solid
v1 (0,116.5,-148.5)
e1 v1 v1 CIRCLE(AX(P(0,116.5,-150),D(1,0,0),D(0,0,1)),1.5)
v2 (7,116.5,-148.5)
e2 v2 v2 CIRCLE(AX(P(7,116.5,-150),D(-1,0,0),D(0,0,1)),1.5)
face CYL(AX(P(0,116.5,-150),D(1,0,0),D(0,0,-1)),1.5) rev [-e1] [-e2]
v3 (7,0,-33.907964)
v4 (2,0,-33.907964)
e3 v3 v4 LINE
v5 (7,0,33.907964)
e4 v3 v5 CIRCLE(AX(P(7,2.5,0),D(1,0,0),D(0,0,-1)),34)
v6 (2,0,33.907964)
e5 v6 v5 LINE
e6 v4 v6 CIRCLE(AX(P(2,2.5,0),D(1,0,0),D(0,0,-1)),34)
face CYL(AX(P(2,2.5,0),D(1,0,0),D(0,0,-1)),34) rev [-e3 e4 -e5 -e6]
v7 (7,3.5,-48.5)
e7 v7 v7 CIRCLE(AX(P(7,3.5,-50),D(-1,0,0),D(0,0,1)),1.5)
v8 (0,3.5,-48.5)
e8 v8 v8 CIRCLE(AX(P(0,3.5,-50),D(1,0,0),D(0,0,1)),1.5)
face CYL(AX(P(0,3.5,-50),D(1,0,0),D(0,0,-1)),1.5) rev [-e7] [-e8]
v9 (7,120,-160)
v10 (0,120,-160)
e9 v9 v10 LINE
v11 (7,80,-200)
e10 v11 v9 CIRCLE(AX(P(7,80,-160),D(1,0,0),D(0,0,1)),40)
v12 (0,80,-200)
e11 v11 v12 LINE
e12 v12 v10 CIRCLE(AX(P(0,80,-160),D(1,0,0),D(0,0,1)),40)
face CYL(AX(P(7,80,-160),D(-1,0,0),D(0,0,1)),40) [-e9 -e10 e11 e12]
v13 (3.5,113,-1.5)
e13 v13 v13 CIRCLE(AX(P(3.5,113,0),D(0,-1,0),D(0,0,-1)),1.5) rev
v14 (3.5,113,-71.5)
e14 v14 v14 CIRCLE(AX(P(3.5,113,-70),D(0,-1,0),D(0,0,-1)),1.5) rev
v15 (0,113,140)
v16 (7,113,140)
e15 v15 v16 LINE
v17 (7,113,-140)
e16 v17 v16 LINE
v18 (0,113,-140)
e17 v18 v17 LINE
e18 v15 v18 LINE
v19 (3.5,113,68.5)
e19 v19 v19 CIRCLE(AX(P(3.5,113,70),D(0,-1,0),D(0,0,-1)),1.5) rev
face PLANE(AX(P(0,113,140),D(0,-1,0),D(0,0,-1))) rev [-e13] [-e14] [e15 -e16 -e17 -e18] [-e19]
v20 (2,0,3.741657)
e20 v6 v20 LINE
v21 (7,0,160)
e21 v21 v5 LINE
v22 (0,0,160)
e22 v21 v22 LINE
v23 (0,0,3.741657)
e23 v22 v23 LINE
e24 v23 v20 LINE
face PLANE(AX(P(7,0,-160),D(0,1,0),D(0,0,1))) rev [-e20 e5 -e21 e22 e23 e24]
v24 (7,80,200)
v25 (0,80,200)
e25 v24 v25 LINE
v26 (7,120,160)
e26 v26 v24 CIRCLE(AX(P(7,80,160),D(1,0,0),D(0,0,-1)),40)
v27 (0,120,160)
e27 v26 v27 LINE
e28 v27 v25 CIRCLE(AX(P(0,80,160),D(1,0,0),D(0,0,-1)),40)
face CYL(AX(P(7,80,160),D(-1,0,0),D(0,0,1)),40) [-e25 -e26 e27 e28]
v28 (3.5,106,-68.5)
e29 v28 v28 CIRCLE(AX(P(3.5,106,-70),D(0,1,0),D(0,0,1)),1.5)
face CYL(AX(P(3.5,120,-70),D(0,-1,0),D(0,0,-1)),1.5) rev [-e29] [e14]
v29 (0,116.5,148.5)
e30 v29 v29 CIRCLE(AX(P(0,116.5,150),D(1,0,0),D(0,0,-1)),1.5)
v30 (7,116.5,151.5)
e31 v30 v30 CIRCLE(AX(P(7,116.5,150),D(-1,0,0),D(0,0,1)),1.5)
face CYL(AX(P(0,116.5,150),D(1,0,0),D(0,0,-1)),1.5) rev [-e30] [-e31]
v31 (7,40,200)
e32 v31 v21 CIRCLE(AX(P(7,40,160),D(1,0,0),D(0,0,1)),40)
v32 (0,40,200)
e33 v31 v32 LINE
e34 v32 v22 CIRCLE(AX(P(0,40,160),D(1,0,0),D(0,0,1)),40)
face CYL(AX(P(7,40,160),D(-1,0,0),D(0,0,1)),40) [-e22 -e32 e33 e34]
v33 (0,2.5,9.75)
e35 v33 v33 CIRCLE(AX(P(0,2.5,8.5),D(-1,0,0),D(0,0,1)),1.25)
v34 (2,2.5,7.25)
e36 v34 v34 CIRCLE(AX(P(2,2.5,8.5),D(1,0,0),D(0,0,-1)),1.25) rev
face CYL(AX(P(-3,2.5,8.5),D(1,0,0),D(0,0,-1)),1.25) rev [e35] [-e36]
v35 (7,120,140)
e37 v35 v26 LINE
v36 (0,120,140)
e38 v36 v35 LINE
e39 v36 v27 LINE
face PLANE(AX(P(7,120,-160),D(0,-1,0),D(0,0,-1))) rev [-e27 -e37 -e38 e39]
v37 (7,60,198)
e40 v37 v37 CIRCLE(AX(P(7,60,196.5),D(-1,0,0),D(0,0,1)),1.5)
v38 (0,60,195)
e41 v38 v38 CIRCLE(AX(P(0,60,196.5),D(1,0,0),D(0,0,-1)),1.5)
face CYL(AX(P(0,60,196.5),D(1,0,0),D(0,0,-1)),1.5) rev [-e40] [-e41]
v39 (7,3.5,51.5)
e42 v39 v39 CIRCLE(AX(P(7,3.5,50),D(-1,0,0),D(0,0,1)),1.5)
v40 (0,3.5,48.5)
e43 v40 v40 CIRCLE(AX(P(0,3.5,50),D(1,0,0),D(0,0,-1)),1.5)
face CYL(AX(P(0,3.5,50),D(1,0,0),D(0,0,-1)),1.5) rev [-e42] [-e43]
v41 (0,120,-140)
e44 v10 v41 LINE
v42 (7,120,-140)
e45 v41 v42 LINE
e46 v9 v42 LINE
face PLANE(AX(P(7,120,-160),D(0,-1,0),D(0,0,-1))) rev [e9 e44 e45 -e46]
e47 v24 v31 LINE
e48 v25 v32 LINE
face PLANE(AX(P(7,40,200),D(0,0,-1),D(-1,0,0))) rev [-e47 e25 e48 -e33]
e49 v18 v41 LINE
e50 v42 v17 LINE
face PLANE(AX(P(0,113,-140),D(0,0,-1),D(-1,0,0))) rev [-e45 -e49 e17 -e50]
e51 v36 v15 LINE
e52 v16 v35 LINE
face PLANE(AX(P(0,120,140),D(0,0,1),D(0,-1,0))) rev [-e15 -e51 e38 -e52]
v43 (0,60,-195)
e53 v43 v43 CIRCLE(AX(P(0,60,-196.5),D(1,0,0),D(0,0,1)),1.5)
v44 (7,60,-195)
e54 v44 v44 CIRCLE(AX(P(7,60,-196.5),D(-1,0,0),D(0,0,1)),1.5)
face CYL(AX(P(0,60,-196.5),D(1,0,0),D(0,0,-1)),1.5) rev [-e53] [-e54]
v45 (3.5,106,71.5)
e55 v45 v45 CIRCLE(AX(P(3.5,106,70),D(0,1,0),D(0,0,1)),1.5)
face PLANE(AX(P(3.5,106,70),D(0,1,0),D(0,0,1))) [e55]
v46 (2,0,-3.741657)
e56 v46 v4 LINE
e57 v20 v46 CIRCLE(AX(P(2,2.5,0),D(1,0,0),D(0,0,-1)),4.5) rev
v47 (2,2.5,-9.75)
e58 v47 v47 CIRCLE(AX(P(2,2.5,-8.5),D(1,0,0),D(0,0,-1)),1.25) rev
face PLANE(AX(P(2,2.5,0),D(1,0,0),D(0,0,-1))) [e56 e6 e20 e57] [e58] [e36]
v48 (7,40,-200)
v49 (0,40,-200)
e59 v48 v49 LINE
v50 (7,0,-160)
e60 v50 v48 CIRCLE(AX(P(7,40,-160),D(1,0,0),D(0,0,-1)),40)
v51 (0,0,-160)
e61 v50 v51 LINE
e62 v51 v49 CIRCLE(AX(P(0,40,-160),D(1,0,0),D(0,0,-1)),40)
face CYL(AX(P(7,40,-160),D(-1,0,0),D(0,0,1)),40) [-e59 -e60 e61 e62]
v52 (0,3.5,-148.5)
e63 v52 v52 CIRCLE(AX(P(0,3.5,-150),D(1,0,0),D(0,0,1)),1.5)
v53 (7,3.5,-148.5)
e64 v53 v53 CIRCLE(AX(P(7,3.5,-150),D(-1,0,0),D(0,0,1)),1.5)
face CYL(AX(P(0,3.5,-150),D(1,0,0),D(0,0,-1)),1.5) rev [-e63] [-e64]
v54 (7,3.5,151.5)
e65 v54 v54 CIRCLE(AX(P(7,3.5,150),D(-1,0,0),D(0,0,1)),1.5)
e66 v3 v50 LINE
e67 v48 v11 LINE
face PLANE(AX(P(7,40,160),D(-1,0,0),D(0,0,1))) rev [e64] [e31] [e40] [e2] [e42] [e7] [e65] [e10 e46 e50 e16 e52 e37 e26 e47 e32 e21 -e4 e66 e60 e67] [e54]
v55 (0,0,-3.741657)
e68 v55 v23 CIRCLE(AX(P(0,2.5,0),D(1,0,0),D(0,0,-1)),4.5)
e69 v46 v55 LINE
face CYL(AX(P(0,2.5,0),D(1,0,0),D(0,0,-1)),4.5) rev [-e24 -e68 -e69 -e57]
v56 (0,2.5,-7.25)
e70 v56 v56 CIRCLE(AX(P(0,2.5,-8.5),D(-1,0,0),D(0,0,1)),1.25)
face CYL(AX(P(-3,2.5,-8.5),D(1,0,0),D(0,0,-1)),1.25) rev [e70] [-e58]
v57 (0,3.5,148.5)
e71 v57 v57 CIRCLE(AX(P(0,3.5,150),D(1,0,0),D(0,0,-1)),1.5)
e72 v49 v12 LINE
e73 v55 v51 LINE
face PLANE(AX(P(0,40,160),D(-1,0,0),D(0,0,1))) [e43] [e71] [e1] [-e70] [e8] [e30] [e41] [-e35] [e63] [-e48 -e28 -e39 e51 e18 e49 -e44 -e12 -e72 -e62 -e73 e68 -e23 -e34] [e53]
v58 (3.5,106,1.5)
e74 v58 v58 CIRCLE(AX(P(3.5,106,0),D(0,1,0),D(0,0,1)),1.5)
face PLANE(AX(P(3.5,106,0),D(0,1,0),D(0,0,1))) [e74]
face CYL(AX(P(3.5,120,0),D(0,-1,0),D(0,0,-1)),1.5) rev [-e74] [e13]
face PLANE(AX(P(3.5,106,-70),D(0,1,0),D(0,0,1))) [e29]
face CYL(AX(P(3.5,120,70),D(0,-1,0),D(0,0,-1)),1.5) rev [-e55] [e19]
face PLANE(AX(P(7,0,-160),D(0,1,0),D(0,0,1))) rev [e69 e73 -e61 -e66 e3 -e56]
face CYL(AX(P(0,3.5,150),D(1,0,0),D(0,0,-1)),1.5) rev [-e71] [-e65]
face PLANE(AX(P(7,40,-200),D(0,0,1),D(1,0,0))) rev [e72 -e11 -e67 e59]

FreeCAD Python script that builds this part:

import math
import FreeCAD as App
import Part
import Sketcher
Q = App.Units.Quantity

doc = App.newDocument("Part")
body = doc.addObject("PartDesign::Body", "Body")

# Sketch on YZ plane
sketch1 = body.newObject("Sketcher::SketchObject", "Sketch")
sketch1.AttachmentSupport = (doc.getObject("YZ_Plane"), [""])
sketch1.MapMode = "FlatFace"
sketch1.addGeometry([
    Part.LineSegment(App.Vector(0, 160, 0), App.Vector(0, -160, 0)),  # 0
    Part.ArcOfCircle(Part.Circle(App.Vector(40, -160, 0), App.Vector(0, 0, 1), 40), math.radians(-180), math.radians(-90)),  # 1
    Part.LineSegment(App.Vector(40, -200, 0), App.Vector(80, -200, 0)),  # 2
    Part.ArcOfCircle(Part.Circle(App.Vector(80, -160, 0), App.Vector(0, 0, 1), 40), math.radians(-90), math.radians(0)),  # 3
    Part.LineSegment(App.Vector(120, -160, 0), App.Vector(120, 160, 0)),  # 4
    Part.ArcOfCircle(Part.Circle(App.Vector(80, 160, 0), App.Vector(0, 0, 1), 40), math.radians(0), math.radians(90)),  # 5
    Part.LineSegment(App.Vector(80, 200, 0), App.Vector(40, 200, 0)),  # 6
    Part.ArcOfCircle(Part.Circle(App.Vector(40, 160, 0), App.Vector(0, 0, 1), 40), math.radians(90), math.radians(180)),  # 7
], False)
sketch1.addConstraint([
    Sketcher.Constraint("Tangent", 0, 2, 1, 1),
    Sketcher.Constraint("Tangent", 1, 2, 2, 1),
    Sketcher.Constraint("Tangent", 2, 2, 3, 1),
    Sketcher.Constraint("Tangent", 3, 2, 4, 1),
    Sketcher.Constraint("Tangent", 4, 2, 5, 1),
    Sketcher.Constraint("Tangent", 5, 2, 6, 1),
    Sketcher.Constraint("Tangent", 6, 2, 7, 1),
    Sketcher.Constraint("Tangent", 7, 2, 0, 1),
    Sketcher.Constraint("Vertical", 0),
    Sketcher.Constraint("Horizontal", 2),
    Sketcher.Constraint("Vertical", 4),
    Sketcher.Constraint("Horizontal", 6),
    Sketcher.Constraint("Equal", 1, 3),
    Sketcher.Constraint("Equal", 3, 5),
    Sketcher.Constraint("Equal", 5, 7),
    Sketcher.Constraint("Symmetric", 0, 2, 7, 2, -1, 1),
    Sketcher.Constraint("Radius", 1, Q("40 mm")),
    Sketcher.Constraint("DistanceX", 2, 1, 2, 2, Q("40 mm")),
    Sketcher.Constraint("DistanceY", 0, 2, 0, 1, Q("320 mm")),
])
pad1 = body.newObject("PartDesign::Pad", "Pad")
pad1.Profile = sketch1
pad1.Length = 7

# Sketch on YZ plane
sketch2 = body.newObject("Sketcher::SketchObject", "Sketch001")
sketch2.AttachmentSupport = (doc.getObject("YZ_Plane"), [""])
sketch2.MapMode = "FlatFace"
sketch2.AttachmentOffset = App.Placement(App.Vector(0, 0, 7), App.Rotation())
sketch2.addGeometry([
    Part.Circle(App.Vector(116.5, 150, 0), App.Vector(0, 0, 1), 1.5),  # 0
    Part.Circle(App.Vector(60, 196.5, 0), App.Vector(0, 0, 1), 1.5),  # 1
    Part.Circle(App.Vector(3.5, 50, 0), App.Vector(0, 0, 1), 1.5),  # 2
    Part.Circle(App.Vector(3.5, 150, 0), App.Vector(0, 0, 1), 1.5),  # 3
    Part.Circle(App.Vector(3.5, -50, 0), App.Vector(0, 0, 1), 1.5),  # 4
    Part.Circle(App.Vector(3.5, -150, 0), App.Vector(0, 0, 1), 1.5),  # 5
    Part.Circle(App.Vector(60, -196.5, 0), App.Vector(0, 0, 1), 1.5),  # 6
    Part.Circle(App.Vector(116.5, -150, 0), App.Vector(0, 0, 1), 1.5),  # 7
    Part.LineSegment(App.Vector(120, 140, 0), App.Vector(113, 140, 0)),  # 8
    Part.LineSegment(App.Vector(113, 140, 0), App.Vector(113, -140, 0)),  # 9
    Part.LineSegment(App.Vector(113, -140, 0), App.Vector(120, -140, 0)),  # 10
    Part.LineSegment(App.Vector(120, -140, 0), App.Vector(120, 140, 0)),  # 11
], False)
sketch2.addConstraint([
    Sketcher.Constraint("Coincident", 8, 2, 9, 1),
    Sketcher.Constraint("Coincident", 9, 2, 10, 1),
    Sketcher.Constraint("Coincident", 10, 2, 11, 1),
    Sketcher.Constraint("Coincident", 11, 2, 8, 1),
    Sketcher.Constraint("Horizontal", 8),
    Sketcher.Constraint("Vertical", 9),
    Sketcher.Constraint("Horizontal", 10),
    Sketcher.Constraint("Vertical", 11),
    Sketcher.Constraint("Equal", 0, 1),
    Sketcher.Constraint("Equal", 1, 2),
    Sketcher.Constraint("Equal", 2, 3),
    Sketcher.Constraint("Equal", 3, 4),
    Sketcher.Constraint("Equal", 4, 5),
    Sketcher.Constraint("Equal", 5, 6),
    Sketcher.Constraint("Equal", 6, 7),
    Sketcher.Constraint("Symmetric", 2, 3, 4, 3, -1),
    Sketcher.Constraint("Symmetric", 3, 3, 5, 3, -1),
    Sketcher.Constraint("Symmetric", 1, 3, 6, 3, -1),
    Sketcher.Constraint("Symmetric", 0, 3, 7, 3, -1),
    Sketcher.Constraint("Horizontal", 0, 3, 3, 3),
    Sketcher.Constraint("Vertical", 2, 3, 3, 3),
    Sketcher.Constraint("Diameter", 0, Q("3 mm")),
    Sketcher.Constraint("DistanceX", 8, 2, 8, 1, Q("7 mm")),
    Sketcher.Constraint("DistanceY", 9, 2, 9, 1, Q("280 mm")),
    Sketcher.Constraint("DistanceY", -1, 1, 0, 3, Q("150 mm")),
    Sketcher.Constraint("DistanceX", -1, 1, 1, 3, Q("60 mm")),
    Sketcher.Constraint("DistanceY", -1, 1, 2, 3, Q("50 mm")),
    Sketcher.Constraint("DistanceX", -1, 1, 8, 2, Q("113 mm")),
    Sketcher.Constraint("DistanceY", -1, 1, 8, 2, Q("140 mm")),
    Sketcher.Constraint("DistanceX", 2, 3, 0, 3, Q("113 mm")),
    Sketcher.Constraint("DistanceX", -1, 1, 0, 3, Q("116.5 mm")),
    Sketcher.Constraint("DistanceY", -1, 1, 1, 3, Q("196.5 mm")),
])
pocket1 = body.newObject("PartDesign::Pocket", "Pocket")
pocket1.Profile = sketch2
pocket1.Type = "ThroughAll"
pocket1.Midplane = True

# Sketch on XZ plane
sketch3 = body.newObject("Sketcher::SketchObject", "Sketch002")
sketch3.AttachmentSupport = (doc.getObject("XZ_Plane"), [""])
sketch3.MapMode = "FlatFace"
sketch3.AttachmentOffset = App.Placement(App.Vector(0, 0, -116), App.Rotation())
sketch3.addGeometry([
    Part.Circle(App.Vector(3.5, -70, 0), App.Vector(0, 0, 1), 1.5),
    Part.Circle(App.Vector(3.5, 0, 0), App.Vector(0, 0, 1), 1.5),
    Part.Circle(App.Vector(3.5, 70, 0), App.Vector(0, 0, 1), 1.5),
], False)
sketch3.addConstraint([
    Sketcher.Constraint("Equal", 0, 1),
    Sketcher.Constraint("Equal", 1, 2),
    Sketcher.Constraint("Symmetric", 0, 3, 2, 3, -1),
    Sketcher.Constraint("PointOnObject", 1, 3, -1),
    Sketcher.Constraint("Vertical", 0, 3, 1, 3),
    Sketcher.Constraint("Diameter", 0, Q("3 mm")),
    Sketcher.Constraint("DistanceY", 0, 3, -1, 1, Q("70 mm")),
    Sketcher.Constraint("DistanceX", -1, 1, 0, 3, Q("3.5 mm")),
])
pocket2 = body.newObject("PartDesign::Pocket", "Pocket001")
pocket2.Profile = sketch3
pocket2.Type = "TwoLengths"
pocket2.Length = 230.82167
pocket2.Length2 = 10

# Sketch on YZ plane
sketch4 = body.newObject("Sketcher::SketchObject", "Sketch003")
sketch4.AttachmentSupport = (doc.getObject("YZ_Plane"), [""])
sketch4.MapMode = "FlatFace"
sketch4.AttachmentOffset = App.Placement(App.Vector(0, 0, 7), App.Rotation())
sketch4.addGeometry([
    Part.Circle(App.Vector(2.5, 8.5, 0), App.Vector(0, 0, 1), 1.2),
    Part.Circle(App.Vector(2.5, -8.5, 0), App.Vector(0, 0, 1), 1.2),
], False)
sketch4.addConstraint([
    Sketcher.Constraint("Equal", 0, 1),
    Sketcher.Constraint("Symmetric", 0, 3, 1, 3, -1),
    Sketcher.Constraint("Diameter", 0, Q("2.5 mm")),
    Sketcher.Constraint("DistanceY", 1, 3, 0, 3, Q("17 mm")),
    Sketcher.Constraint("DistanceX", -1, 1, 0, 3, Q("2.5 mm")),
])
pocket3 = body.newObject("PartDesign::Pocket", "Pocket002")
pocket3.Profile = sketch4
pocket3.Length = 10

# Sketch on YZ plane
sketch5 = body.newObject("Sketcher::SketchObject", "Sketch004")
sketch5.AttachmentSupport = (doc.getObject("YZ_Plane"), [""])
sketch5.MapMode = "FlatFace"
sketch5.AttachmentOffset = App.Placement(App.Vector(0, 0, 7), App.Rotation())
sketch5.addGeometry([
    Part.LineSegment(App.Vector(-15, 14, 0), App.Vector(-15, -14, 0)),
    Part.LineSegment(App.Vector(-15, -14, 0), App.Vector(5, -14, 0)),
    Part.ArcOfCircle(Part.Circle(App.Vector(5, 0, 0), App.Vector(0, 0, 1), 14), math.radians(-90), math.radians(90)),
    Part.LineSegment(App.Vector(5, 14, 0), App.Vector(-15, 14, 0)),
], False)
sketch5.addConstraint([
    Sketcher.Constraint("Coincident", 0, 2, 1, 1),
    Sketcher.Constraint("Tangent", 1, 2, 2, 1),
    Sketcher.Constraint("Tangent", 2, 2, 3, 1),
    Sketcher.Constraint("Coincident", 3, 2, 0, 1),
    Sketcher.Constraint("Vertical", 0),
    Sketcher.Constraint("Horizontal", 1),
    Sketcher.Constraint("Horizontal", 3),
    Sketcher.Constraint("PointOnObject", 2, 3, -1),
    Sketcher.Constraint("Radius", 2, Q("14 mm")),
    Sketcher.Constraint("DistanceX", 1, 1, 1, 2, Q("20 mm")),
    Sketcher.Constraint("DistanceX", -1, 1, 2, 3, Q("5 mm")),
])
pocket4 = body.newObject("PartDesign::Pocket", "Pocket003")
pocket4.Profile = sketch5
pocket4.Length = 4

# Sketch on YZ plane
sketch6 = body.newObject("Sketcher::SketchObject", "Sketch005")
sketch6.AttachmentSupport = (doc.getObject("YZ_Plane"), [""])
sketch6.MapMode = "FlatFace"
sketch6.AttachmentOffset = App.Placement(App.Vector(0, 0, 3), App.Rotation())
sketch6.addGeometry(Part.Circle(App.Vector(2.5, 0, 0), App.Vector(0, 0, 1), 4.5), False)
sketch6.addConstraint([
    Sketcher.Constraint("PointOnObject", 0, 3, -1),
    Sketcher.Constraint("Diameter", 0, Q("9 mm")),
    Sketcher.Constraint("DistanceX", -1, 1, 0, 3, Q("2.5 mm")),
])
pocket5 = body.newObject("PartDesign::Pocket", "Pocket004")
pocket5.Profile = sketch6
pocket5.Type = "ThroughAll"

# Sketch on YZ plane
sketch7 = body.newObject("Sketcher::SketchObject", "Sketch006")
sketch7.AttachmentSupport = (doc.getObject("YZ_Plane"), [""])
sketch7.MapMode = "FlatFace"
sketch7.AttachmentOffset = App.Placement(App.Vector(0, 0, 7), App.Rotation())
sketch7.addGeometry(Part.Circle(App.Vector(2, 0, 0), App.Vector(0, 0, 1), 34), False)
sketch7.addConstraint([
    Sketcher.Constraint("PointOnObject", 0, 3, -1),
    Sketcher.Constraint("Diameter", 0, Q("68 mm")),
    Sketcher.Constraint("DistanceX", -1, 1, 0, 3, Q("2.5 mm")),
])
pocket6 = body.newObject("PartDesign::Pocket", "Pocket005")
pocket6.Profile = sketch7
pocket6.Length = 5

doc.recompute()
